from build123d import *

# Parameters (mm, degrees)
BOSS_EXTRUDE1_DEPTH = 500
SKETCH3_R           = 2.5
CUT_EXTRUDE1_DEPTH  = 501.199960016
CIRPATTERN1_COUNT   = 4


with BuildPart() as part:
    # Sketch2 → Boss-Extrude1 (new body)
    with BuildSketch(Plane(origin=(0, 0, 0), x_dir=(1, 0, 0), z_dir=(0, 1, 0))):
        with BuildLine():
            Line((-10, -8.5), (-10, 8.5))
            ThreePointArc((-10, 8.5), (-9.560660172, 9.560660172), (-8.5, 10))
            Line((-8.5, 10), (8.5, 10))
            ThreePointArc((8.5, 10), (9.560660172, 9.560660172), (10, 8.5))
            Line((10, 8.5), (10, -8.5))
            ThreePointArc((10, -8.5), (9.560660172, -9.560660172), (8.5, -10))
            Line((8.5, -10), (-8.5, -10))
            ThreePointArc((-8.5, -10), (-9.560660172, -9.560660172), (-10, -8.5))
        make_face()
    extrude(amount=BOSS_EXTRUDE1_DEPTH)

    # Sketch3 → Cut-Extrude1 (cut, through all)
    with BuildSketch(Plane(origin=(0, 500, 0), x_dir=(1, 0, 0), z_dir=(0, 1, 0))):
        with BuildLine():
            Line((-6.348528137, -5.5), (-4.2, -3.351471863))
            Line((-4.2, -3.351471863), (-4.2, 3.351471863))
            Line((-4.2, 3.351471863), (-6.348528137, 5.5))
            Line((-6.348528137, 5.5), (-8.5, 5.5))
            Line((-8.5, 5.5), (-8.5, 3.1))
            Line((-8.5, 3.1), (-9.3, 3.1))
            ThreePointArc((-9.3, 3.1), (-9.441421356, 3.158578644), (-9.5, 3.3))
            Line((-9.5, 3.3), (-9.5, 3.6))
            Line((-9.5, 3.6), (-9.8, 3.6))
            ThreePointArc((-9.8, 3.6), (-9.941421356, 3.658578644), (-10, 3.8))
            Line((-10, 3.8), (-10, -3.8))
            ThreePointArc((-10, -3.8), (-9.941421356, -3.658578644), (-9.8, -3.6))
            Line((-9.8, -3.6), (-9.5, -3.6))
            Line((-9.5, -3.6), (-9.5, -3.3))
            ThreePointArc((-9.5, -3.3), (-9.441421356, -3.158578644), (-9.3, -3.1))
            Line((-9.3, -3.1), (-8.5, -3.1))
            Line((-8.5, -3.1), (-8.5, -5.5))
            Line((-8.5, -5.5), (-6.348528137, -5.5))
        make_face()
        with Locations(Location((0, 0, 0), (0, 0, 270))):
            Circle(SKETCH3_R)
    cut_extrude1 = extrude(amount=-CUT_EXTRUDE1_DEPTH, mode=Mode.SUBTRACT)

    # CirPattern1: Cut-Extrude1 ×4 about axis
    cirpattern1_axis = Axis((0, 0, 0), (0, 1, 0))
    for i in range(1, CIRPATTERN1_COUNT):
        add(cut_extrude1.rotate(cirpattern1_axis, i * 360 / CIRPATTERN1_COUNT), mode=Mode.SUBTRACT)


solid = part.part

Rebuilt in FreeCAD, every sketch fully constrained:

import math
import FreeCAD as App
import Part
import Sketcher

V = App.Vector
Q = App.Units.Quantity

doc = App.newDocument("Part")
body = doc.addObject("PartDesign::Body", "Body")

# Sketch on XZ plane
sketch1 = doc.addObject("Sketcher::SketchObject", "Sketch")
body.addObject(sketch1)
sketch1.AttachmentSupport = (doc.XZ_Plane, [""])
sketch1.MapMode = "FlatFace"
sketch1.addGeometry([
    Part.LineSegment(V(-10, -8.5, 0), V(-10, 8.5, 0)),  # 0
    Part.ArcOfCircle(Part.Circle(V(-8.5, 8.5, 0), V(0, 0, 1), 1.5), math.radians(90), math.radians(180)),  # 1
    Part.LineSegment(V(-8.5, 10, 0), V(8.5, 10, 0)),  # 2
    Part.ArcOfCircle(Part.Circle(V(8.5, 8.5, 0), V(0, 0, 1), 1.5), math.radians(0), math.radians(90)),  # 3
    Part.LineSegment(V(10, 8.5, 0), V(10, -8.5, 0)),  # 4
    Part.ArcOfCircle(Part.Circle(V(8.5, -8.5, 0), V(0, 0, 1), 1.5), math.radians(-90), math.radians(0)),  # 5
    Part.LineSegment(V(8.5, -10, 0), V(-8.5, -10, 0)),  # 6
    Part.ArcOfCircle(Part.Circle(V(-8.5, -8.5, 0), V(0, 0, 1), 1.5), math.radians(180), math.radians(270)),  # 7
], False)
sketch1.addConstraint([
    Sketcher.Constraint("Tangent", 0, 2, 1, 2),
    Sketcher.Constraint("Tangent", 1, 1, 2, 1),
    Sketcher.Constraint("Tangent", 2, 2, 3, 2),
    Sketcher.Constraint("Tangent", 3, 1, 4, 1),
    Sketcher.Constraint("Tangent", 4, 2, 5, 2),
    Sketcher.Constraint("Tangent", 5, 1, 6, 1),
    Sketcher.Constraint("Tangent", 6, 2, 7, 2),
    Sketcher.Constraint("Tangent", 7, 1, 0, 1),
    Sketcher.Constraint("Vertical", 0),
    Sketcher.Constraint("Horizontal", 2),
    Sketcher.Constraint("Vertical", 4),
    Sketcher.Constraint("Horizontal", 6),
    Sketcher.Constraint("Equal", 1, 3),
    Sketcher.Constraint("Equal", 3, 5),
    Sketcher.Constraint("Equal", 5, 7),
    Sketcher.Constraint("Symmetric", 1, 3, 5, 3, -1, 1),
    Sketcher.Constraint("Equal", 6, 0),
    Sketcher.Constraint("Radius", 1, Q("1.5 mm")),
    Sketcher.Constraint("DistanceX", 2, 1, 2, 2, Q("17 mm")),
])
pad1 = doc.addObject("PartDesign::Pad", "Pad")
body.addObject(pad1)
pad1.Profile = sketch1
pad1.Length = 500
pad1.Reversed = True

# Sketch on XZ plane
sketch2 = doc.addObject("Sketcher::SketchObject", "Sketch001")
body.addObject(sketch2)
sketch2.AttachmentSupport = (doc.XZ_Plane, [""])
sketch2.MapMode = "FlatFace"
sketch2.AttachmentOffset = App.Placement(V(0, 0, -500), App.Rotation())
sketch2.addGeometry([
    Part.LineSegment(V(-6.348528, 5.5, 0), V(-4.2, 3.351472, 0)),  # 0
    Part.LineSegment(V(-4.2, 3.351472, 0), V(-4.2, -3.351472, 0)),  # 1
    Part.LineSegment(V(-4.2, -3.351472, 0), V(-6.348528, -5.5, 0)),  # 2
    Part.LineSegment(V(-6.348528, -5.5, 0), V(-8.5, -5.5, 0)),  # 3
    Part.LineSegment(V(-8.5, -5.5, 0), V(-8.5, -3.1, 0)),  # 4
    Part.LineSegment(V(-8.5, -3.1, 0), V(-9.3, -3.1, 0)),  # 5
    Part.ArcOfCircle(Part.Circle(V(-9.3, -3.3, 0), V(0, 0, 1), 0.2), math.radians(90), math.radians(180)),  # 6
    Part.LineSegment(V(-9.5, -3.3, 0), V(-9.5, -3.6, 0)),  # 7
    Part.LineSegment(V(-9.5, -3.6, 0), V(-9.8, -3.6, 0)),  # 8
    Part.ArcOfCircle(Part.Circle(V(-9.8, -3.8, 0), V(0, 0, 1), 0.2), math.radians(90), math.radians(180)),  # 9
    Part.LineSegment(V(-10, -3.8, 0), V(-10, 3.8, 0)),  # 10
    Part.ArcOfCircle(Part.Circle(V(-9.8, 3.8, 0), V(0, 0, 1), 0.2), math.radians(-180), math.radians(-90)),  # 11
    Part.LineSegment(V(-9.8, 3.6, 0), V(-9.5, 3.6, 0)),  # 12
    Part.LineSegment(V(-9.5, 3.6, 0), V(-9.5, 3.3, 0)),  # 13
    Part.ArcOfCircle(Part.Circle(V(-9.3, 3.3, 0), V(0, 0, 1), 0.2), math.radians(-180), math.radians(-90)),  # 14
    Part.LineSegment(V(-9.3, 3.1, 0), V(-8.5, 3.1, 0)),  # 15
    Part.LineSegment(V(-8.5, 3.1, 0), V(-8.5, 5.5, 0)),  # 16
    Part.LineSegment(V(-8.5, 5.5, 0), V(-6.348528, 5.5, 0)),  # 17
    Part.Circle(V(0, 0, 0), V(0, 0, 1), 2.5),  # 18
], False)
sketch2.addConstraint([
    Sketcher.Constraint("Coincident", 0, 2, 1, 1),
    Sketcher.Constraint("Coincident", 1, 2, 2, 1),
    Sketcher.Constraint("Coincident", 2, 2, 3, 1),
    Sketcher.Constraint("Coincident", 3, 2, 4, 1),
    Sketcher.Constraint("Coincident", 4, 2, 5, 1),
    Sketcher.Constraint("Tangent", 5, 2, 6, 1),
    Sketcher.Constraint("Tangent", 6, 2, 7, 1),
    Sketcher.Constraint("Coincident", 7, 2, 8, 1),
    Sketcher.Constraint("Tangent", 8, 2, 9, 1),
    Sketcher.Constraint("Tangent", 9, 2, 10, 1),
    Sketcher.Constraint("Tangent", 10, 2, 11, 1),
    Sketcher.Constraint("Tangent", 11, 2, 12, 1),
    Sketcher.Constraint("Coincident", 12, 2, 13, 1),
    Sketcher.Constraint("Tangent", 13, 2, 14, 1),
    Sketcher.Constraint("Tangent", 14, 2, 15, 1),
    Sketcher.Constraint("Coincident", 15, 2, 16, 1),
    Sketcher.Constraint("Coincident", 16, 2, 17, 1),
    Sketcher.Constraint("Coincident", 17, 2, 0, 1),
    Sketcher.Constraint("Vertical", 1),
    Sketcher.Constraint("Horizontal", 3),
    Sketcher.Constraint("Vertical", 4),
    Sketcher.Constraint("Horizontal", 5),
    Sketcher.Constraint("Vertical", 7),
    Sketcher.Constraint("Horizontal", 8),
    Sketcher.Constraint("Vertical", 10),
    Sketcher.Constraint("Horizontal", 12),
    Sketcher.Constraint("Vertical", 13),
    Sketcher.Constraint("Horizontal", 15),
    Sketcher.Constraint("Vertical", 16),
    Sketcher.Constraint("Horizontal", 17),
    Sketcher.Constraint("Coincident", 18, 3, -1, 1),
    Sketcher.Constraint("Equal", 6, 9),
    Sketcher.Constraint("Equal", 9, 11),
    Sketcher.Constraint("Equal", 11, 14),
    Sketcher.Constraint("Symmetric", 6, 3, 14, 3, -1),
    Sketcher.Constraint("Symmetric", 3, 2, 16, 2, -1),
    Sketcher.Constraint("Perpendicular", 0, 2),
    Sketcher.Constraint("Vertical", 2, 2, 17, 2),
    Sketcher.Constraint("Equal", 12, 7),
    Sketcher.Constraint("Equal", 7, 13),
    Sketcher.Constraint("Equal", 0, 2),
    Sketcher.Constraint("Diameter", 18, Q("5 mm")),
    Sketcher.Constraint("Radius", 6, Q("0.2 mm")),
    Sketcher.Constraint("DistanceX", 5, 2, 5, 1, Q("0.8 mm")),
    Sketcher.Constraint("DistanceX", 8, 2, 8, 1, Q("0.3 mm")),
    Sketcher.Constraint("DistanceY", 4, 1, 4, 2, Q("2.4 mm")),
    Sketcher.Constraint("DistanceY", 10, 1, 10, 2, Q("7.6 mm")),
    Sketcher.Constraint("DistanceX", 9, 2, -1, 1, Q("10 mm")),
    Sketcher.Constraint("DistanceX", 0, 2, -1, 1, Q("4.2 mm")),
    Sketcher.Constraint("DistanceX", 3, 2, 3, 1, Q("2.151472 mm")),
])
pocket1 = doc.addObject("PartDesign::Pocket", "Pocket")
body.addObject(pocket1)
pocket1.Profile = sketch2
pocket1.Type = "ThroughAll"
pocket1.Reversed = True
doc.recompute()

polarpattern = doc.addObject("PartDesign::PolarPattern", "PolarPattern")
body.addObject(polarpattern)
polarpattern.Originals = [pocket1]
polarpattern.Axis = (doc.Y_Axis, [""])
polarpattern.Angle = 360
polarpattern.Occurrences = 4
body.Tip = polarpattern

doc.recompute()
